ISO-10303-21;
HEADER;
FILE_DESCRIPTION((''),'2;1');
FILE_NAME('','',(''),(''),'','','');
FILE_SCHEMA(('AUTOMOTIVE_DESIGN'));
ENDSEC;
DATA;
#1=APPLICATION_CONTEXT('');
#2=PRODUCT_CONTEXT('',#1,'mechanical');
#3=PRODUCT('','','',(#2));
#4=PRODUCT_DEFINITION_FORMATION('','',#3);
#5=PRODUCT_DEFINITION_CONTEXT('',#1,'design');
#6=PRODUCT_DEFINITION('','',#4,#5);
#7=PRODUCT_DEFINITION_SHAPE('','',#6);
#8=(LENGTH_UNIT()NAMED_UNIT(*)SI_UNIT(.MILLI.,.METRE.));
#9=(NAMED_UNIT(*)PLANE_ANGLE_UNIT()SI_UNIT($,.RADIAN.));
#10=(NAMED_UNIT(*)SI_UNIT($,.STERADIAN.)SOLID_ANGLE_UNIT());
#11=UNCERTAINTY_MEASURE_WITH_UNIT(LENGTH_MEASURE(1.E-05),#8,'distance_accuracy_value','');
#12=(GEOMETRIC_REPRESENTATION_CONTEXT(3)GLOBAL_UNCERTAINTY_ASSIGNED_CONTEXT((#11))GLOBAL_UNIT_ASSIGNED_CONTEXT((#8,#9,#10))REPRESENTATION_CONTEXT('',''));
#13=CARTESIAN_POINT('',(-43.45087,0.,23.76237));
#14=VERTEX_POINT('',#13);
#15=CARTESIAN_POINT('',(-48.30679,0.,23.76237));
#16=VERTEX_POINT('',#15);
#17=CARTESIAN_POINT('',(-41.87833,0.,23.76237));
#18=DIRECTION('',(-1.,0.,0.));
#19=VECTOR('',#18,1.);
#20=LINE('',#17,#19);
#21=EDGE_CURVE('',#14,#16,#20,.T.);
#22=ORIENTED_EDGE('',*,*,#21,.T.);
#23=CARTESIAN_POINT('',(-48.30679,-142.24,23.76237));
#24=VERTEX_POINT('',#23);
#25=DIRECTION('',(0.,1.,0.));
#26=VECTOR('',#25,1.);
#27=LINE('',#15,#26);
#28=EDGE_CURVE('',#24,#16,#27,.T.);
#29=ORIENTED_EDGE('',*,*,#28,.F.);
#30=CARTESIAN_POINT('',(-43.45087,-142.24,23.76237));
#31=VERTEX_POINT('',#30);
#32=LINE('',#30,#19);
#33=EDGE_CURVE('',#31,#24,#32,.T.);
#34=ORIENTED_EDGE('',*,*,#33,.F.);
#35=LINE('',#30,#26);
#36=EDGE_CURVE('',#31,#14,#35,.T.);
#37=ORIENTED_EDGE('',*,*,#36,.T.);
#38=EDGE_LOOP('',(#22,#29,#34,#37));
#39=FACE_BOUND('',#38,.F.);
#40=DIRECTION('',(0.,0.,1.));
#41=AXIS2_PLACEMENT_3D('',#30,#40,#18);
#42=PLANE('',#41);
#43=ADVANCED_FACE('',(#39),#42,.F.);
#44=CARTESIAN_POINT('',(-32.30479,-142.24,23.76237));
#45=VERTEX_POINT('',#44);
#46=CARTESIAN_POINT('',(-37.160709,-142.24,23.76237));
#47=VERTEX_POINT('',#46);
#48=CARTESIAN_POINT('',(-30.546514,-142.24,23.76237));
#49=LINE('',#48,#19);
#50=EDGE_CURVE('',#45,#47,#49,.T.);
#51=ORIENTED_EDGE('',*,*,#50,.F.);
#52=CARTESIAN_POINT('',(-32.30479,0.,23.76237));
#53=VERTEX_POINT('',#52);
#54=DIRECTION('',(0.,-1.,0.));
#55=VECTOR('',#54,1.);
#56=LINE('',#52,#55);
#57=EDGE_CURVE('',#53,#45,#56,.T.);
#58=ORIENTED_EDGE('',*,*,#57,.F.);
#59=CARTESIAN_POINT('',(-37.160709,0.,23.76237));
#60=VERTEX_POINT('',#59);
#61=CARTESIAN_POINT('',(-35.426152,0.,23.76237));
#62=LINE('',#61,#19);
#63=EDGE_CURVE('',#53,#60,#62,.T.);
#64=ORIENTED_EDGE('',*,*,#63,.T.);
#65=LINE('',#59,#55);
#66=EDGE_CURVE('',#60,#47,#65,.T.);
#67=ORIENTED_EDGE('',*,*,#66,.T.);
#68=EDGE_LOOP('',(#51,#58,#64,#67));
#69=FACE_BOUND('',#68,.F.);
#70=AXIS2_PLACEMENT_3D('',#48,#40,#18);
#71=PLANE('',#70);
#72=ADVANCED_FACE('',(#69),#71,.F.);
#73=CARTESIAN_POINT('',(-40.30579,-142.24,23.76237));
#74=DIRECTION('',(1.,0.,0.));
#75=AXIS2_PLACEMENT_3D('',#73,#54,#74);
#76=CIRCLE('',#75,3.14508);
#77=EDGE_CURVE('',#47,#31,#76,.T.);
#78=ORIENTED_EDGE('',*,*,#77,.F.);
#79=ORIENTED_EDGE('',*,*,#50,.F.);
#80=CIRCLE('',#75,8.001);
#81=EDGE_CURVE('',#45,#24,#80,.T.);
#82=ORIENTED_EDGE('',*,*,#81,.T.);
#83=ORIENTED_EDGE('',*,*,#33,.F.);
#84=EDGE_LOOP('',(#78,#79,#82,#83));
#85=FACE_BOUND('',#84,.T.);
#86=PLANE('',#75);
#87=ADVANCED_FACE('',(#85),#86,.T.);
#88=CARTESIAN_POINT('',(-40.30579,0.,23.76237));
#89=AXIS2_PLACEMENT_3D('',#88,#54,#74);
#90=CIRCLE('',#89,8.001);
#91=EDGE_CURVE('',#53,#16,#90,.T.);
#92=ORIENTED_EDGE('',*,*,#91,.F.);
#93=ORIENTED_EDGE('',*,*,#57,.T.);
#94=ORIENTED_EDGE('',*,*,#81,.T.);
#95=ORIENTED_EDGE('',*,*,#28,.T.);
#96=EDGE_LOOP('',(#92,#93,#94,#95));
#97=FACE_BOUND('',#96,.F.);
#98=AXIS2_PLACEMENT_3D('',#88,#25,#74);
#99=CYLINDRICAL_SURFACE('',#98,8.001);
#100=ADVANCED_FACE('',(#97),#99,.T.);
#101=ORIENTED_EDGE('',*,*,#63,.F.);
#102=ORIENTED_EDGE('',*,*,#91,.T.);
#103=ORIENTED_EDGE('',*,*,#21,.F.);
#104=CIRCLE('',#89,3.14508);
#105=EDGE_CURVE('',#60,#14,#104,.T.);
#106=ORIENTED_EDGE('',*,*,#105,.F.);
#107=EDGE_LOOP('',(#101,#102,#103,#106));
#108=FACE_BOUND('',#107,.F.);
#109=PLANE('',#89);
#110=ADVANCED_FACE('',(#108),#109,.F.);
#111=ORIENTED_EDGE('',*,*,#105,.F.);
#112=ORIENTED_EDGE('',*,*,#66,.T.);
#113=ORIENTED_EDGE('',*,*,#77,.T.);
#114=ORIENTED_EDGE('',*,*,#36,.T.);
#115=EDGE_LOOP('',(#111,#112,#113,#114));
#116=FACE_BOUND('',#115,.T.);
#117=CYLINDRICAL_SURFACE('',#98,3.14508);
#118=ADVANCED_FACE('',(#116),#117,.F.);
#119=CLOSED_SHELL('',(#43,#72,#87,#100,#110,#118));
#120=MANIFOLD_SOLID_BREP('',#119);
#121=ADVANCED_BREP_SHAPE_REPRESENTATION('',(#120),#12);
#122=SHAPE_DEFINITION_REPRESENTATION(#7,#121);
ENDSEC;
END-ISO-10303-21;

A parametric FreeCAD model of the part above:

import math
import FreeCAD as App
import Part
import Sketcher
from FreeCAD import Vector
Q = App.Units.Quantity

doc = App.newDocument("Part")
body = doc.addObject("PartDesign::Body", "Body")

# Sketch on XZ plane
sketch1 = body.newObject("Sketcher::SketchObject", "Sketch")
sketch1.AttachmentSupport = (doc.getObject("XZ_Plane"), [""])
sketch1.MapMode = "FlatFace"
sketch1.addGeometry([
    Part.Circle(Vector(-40.3, 23.8, 0), Vector(0, 0, 1), 8),
    Part.Circle(Vector(-40.3, 23.8, 0), Vector(0, 0, 1), 3.1),
], False)
sketch1.addConstraint([
    Sketcher.Constraint("Coincident", 1, 3, 0, 3),
    Sketcher.Constraint("Diameter", 0, Q("0.63 in")),
    Sketcher.Constraint("Diameter", 1, Q("6.29016 mm")),
    Sketcher.Constraint("DistanceX", 0, 3, -1, 1, Q("40.30579 mm")),
    Sketcher.Constraint("DistanceY", -1, 1, 0, 3, Q("23.76237 mm")),
])
pad1 = body.newObject("PartDesign::Pad", "Pad")
pad1.Profile = sketch1
pad1.Length = Q("5.6 in")

# Sketch on XZ plane
sketch2 = body.newObject("Sketcher::SketchObject", "Sketch001")
sketch2.AttachmentSupport = (doc.getObject("XZ_Plane"), [""])
sketch2.MapMode = "FlatFace"
sketch2.AttachmentOffset = App.Placement(Vector(0, 0, 5.6 * 25.4), App.Rotation())
sketch2.addGeometry([
    Part.LineSegment(Vector(-30.5, 23.8, 0), Vector(-37.2, 23.8, 0)),  # 0
    Part.ArcOfCircle(Part.Circle(Vector(-40.3, 23.8, 0), Vector(0, 0, 1), 3.1), math.radians(180), math.radians(360)),  # 1
    Part.LineSegment(Vector(-43.5, 23.8, 0), Vector(-52.8, 23.8, 0)),  # 2
    Part.LineSegment(Vector(-52.8, 23.8, 0), Vector(-53.4, 19, 0)),  # 3
    Part.LineSegment(Vector(-53.4, 19, 0), Vector(-43.7, 13.9, 0)),  # 4
    Part.LineSegment(Vector(-43.7, 13.9, 0), Vector(-30.5, 15.9, 0)),  # 5
    Part.LineSegment(Vector(-30.5, 15.9, 0), Vector(-30.5, 23.8, 0)),  # 6
], False)
sketch2.addConstraint([
    Sketcher.Constraint("Coincident", 0, 2, 1, 2),
    Sketcher.Constraint("Coincident", 1, 1, 2, 1),
    Sketcher.Constraint("Coincident", 2, 2, 3, 1),
    Sketcher.Constraint("Coincident", 3, 2, 4, 1),
    Sketcher.Constraint("Coincident", 4, 2, 5, 1),
    Sketcher.Constraint("Coincident", 5, 2, 6, 1),
    Sketcher.Constraint("Coincident", 6, 2, 0, 1),
    Sketcher.Constraint("Horizontal", 0),
    Sketcher.Constraint("Horizontal", 2),
    Sketcher.Constraint("Vertical", 6),
    Sketcher.Constraint("Horizontal", 1, 3, 0, 2),
    Sketcher.Constraint("Horizontal", 0, 2, 1, 1),
    Sketcher.Constraint("Radius", 1, Q("3.14508 mm")),
    Sketcher.Constraint("DistanceX", 2, 2, 2, 1, Q("9.36253 mm")),
    Sketcher.Constraint("DistanceY", 6, 1, 6, 2, Q("7.812459 mm")),
    Sketcher.Constraint("DistanceX", 2, 2, -1, 1, Q("52.8134 mm")),
    Sketcher.Constraint("DistanceY", 3, 2, 2, 2, Q("4.772002 mm")),
    Sketcher.Constraint("Distance", 4, Q("10.999669 mm")),
    Sketcher.Constraint("DistanceX", 0, 2, 0, 1, Q("6.614195 mm")),
    Sketcher.Constraint("DistanceY", -1, 1, 1, 3, Q("23.76237 mm")),
    Sketcher.Constraint("DistanceX", 3, 2, -1, 1, Q("53.439379 mm")),
    Sketcher.Constraint("DistanceY", -1, 1, 4, 2, Q("13.893129 mm")),
])
pocket1 = body.newObject("PartDesign::Pocket", "Pocket")
pocket1.Profile = sketch2
pocket1.Length = Q("10.61 in")

doc.recompute()
